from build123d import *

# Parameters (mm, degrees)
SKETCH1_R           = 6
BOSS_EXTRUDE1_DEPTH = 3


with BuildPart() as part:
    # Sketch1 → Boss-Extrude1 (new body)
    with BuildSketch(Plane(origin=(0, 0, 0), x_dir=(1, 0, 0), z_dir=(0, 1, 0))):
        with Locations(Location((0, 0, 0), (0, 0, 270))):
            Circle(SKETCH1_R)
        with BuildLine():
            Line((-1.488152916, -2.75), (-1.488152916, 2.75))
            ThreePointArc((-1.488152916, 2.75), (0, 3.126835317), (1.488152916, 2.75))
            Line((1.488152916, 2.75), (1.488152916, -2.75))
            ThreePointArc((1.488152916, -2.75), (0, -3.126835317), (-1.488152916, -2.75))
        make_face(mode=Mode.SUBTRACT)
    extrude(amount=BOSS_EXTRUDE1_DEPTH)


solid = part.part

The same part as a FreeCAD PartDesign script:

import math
import FreeCAD as App
import Part
import Sketcher
Q = App.Units.Quantity

doc = App.newDocument("Part")
body = doc.addObject("PartDesign::Body", "Body")

# Sketch on XZ plane
sketch1 = body.newObject("Sketcher::SketchObject", "Sketch")
sketch1.AttachmentSupport = (doc.getObject("XZ_Plane"), [""])
sketch1.MapMode = "FlatFace"
sketch1.addGeometry(Part.Circle(App.Vector(0, 0, 0), App.Vector(0, 0, 1), 6), False)
sketch1.addGeometry(Part.ArcOfCircle(Part.Circle(App.Vector(0, 0, 0), App.Vector(0, 0, 1), 3.1), math.radians(62), math.radians(118)), False)
sketch1.addGeometry(Part.LineSegment(App.Vector(-1.5, 2.8, 0), App.Vector(-1.5, -2.8, 0)), False)
sketch1.addGeometry(Part.ArcOfCircle(Part.Circle(App.Vector(0, 0, 0), App.Vector(0, 0, 1), 3.1), math.radians(-118), math.radians(-62)), False)
sketch1.addGeometry(Part.LineSegment(App.Vector(1.5, -2.8, 0), App.Vector(1.5, 2.8, 0)), False)
sketch1.addConstraint(Sketcher.Constraint("Coincident", 1, 2, 2, 1))
sketch1.addConstraint(Sketcher.Constraint("Coincident", 2, 2, 3, 1))
sketch1.addConstraint(Sketcher.Constraint("Coincident", 3, 2, 4, 1))
sketch1.addConstraint(Sketcher.Constraint("Coincident", 4, 2, 1, 1))
sketch1.addConstraint(Sketcher.Constraint("Vertical", 2))
sketch1.addConstraint(Sketcher.Constraint("Vertical", 4))
sketch1.addConstraint(Sketcher.Constraint("Coincident", 0, 3, -1, 1))
sketch1.addConstraint(Sketcher.Constraint("Coincident", 1, 3, -1, 1))
sketch1.addConstraint(Sketcher.Constraint("Coincident", 3, 3, -1, 1))
sketch1.addConstraint(Sketcher.Constraint("Equal", 1, 3))
sketch1.addConstraint(Sketcher.Constraint("Horizontal", 2, 2, 3, 2))
sketch1.addConstraint(Sketcher.Constraint("Diameter", 0, Q("12 mm")))
sketch1.addConstraint(Sketcher.Constraint("DistanceY", 2, 2, 2, 1, Q("5.5 mm")))
sketch1.addConstraint(Sketcher.Constraint("Radius", 1, Q("3.126835 mm")))
pad1 = body.newObject("PartDesign::Pad", "Pad")
pad1.Profile = sketch1
pad1.Length = 3
pad1.Reversed = True

doc.recompute()
